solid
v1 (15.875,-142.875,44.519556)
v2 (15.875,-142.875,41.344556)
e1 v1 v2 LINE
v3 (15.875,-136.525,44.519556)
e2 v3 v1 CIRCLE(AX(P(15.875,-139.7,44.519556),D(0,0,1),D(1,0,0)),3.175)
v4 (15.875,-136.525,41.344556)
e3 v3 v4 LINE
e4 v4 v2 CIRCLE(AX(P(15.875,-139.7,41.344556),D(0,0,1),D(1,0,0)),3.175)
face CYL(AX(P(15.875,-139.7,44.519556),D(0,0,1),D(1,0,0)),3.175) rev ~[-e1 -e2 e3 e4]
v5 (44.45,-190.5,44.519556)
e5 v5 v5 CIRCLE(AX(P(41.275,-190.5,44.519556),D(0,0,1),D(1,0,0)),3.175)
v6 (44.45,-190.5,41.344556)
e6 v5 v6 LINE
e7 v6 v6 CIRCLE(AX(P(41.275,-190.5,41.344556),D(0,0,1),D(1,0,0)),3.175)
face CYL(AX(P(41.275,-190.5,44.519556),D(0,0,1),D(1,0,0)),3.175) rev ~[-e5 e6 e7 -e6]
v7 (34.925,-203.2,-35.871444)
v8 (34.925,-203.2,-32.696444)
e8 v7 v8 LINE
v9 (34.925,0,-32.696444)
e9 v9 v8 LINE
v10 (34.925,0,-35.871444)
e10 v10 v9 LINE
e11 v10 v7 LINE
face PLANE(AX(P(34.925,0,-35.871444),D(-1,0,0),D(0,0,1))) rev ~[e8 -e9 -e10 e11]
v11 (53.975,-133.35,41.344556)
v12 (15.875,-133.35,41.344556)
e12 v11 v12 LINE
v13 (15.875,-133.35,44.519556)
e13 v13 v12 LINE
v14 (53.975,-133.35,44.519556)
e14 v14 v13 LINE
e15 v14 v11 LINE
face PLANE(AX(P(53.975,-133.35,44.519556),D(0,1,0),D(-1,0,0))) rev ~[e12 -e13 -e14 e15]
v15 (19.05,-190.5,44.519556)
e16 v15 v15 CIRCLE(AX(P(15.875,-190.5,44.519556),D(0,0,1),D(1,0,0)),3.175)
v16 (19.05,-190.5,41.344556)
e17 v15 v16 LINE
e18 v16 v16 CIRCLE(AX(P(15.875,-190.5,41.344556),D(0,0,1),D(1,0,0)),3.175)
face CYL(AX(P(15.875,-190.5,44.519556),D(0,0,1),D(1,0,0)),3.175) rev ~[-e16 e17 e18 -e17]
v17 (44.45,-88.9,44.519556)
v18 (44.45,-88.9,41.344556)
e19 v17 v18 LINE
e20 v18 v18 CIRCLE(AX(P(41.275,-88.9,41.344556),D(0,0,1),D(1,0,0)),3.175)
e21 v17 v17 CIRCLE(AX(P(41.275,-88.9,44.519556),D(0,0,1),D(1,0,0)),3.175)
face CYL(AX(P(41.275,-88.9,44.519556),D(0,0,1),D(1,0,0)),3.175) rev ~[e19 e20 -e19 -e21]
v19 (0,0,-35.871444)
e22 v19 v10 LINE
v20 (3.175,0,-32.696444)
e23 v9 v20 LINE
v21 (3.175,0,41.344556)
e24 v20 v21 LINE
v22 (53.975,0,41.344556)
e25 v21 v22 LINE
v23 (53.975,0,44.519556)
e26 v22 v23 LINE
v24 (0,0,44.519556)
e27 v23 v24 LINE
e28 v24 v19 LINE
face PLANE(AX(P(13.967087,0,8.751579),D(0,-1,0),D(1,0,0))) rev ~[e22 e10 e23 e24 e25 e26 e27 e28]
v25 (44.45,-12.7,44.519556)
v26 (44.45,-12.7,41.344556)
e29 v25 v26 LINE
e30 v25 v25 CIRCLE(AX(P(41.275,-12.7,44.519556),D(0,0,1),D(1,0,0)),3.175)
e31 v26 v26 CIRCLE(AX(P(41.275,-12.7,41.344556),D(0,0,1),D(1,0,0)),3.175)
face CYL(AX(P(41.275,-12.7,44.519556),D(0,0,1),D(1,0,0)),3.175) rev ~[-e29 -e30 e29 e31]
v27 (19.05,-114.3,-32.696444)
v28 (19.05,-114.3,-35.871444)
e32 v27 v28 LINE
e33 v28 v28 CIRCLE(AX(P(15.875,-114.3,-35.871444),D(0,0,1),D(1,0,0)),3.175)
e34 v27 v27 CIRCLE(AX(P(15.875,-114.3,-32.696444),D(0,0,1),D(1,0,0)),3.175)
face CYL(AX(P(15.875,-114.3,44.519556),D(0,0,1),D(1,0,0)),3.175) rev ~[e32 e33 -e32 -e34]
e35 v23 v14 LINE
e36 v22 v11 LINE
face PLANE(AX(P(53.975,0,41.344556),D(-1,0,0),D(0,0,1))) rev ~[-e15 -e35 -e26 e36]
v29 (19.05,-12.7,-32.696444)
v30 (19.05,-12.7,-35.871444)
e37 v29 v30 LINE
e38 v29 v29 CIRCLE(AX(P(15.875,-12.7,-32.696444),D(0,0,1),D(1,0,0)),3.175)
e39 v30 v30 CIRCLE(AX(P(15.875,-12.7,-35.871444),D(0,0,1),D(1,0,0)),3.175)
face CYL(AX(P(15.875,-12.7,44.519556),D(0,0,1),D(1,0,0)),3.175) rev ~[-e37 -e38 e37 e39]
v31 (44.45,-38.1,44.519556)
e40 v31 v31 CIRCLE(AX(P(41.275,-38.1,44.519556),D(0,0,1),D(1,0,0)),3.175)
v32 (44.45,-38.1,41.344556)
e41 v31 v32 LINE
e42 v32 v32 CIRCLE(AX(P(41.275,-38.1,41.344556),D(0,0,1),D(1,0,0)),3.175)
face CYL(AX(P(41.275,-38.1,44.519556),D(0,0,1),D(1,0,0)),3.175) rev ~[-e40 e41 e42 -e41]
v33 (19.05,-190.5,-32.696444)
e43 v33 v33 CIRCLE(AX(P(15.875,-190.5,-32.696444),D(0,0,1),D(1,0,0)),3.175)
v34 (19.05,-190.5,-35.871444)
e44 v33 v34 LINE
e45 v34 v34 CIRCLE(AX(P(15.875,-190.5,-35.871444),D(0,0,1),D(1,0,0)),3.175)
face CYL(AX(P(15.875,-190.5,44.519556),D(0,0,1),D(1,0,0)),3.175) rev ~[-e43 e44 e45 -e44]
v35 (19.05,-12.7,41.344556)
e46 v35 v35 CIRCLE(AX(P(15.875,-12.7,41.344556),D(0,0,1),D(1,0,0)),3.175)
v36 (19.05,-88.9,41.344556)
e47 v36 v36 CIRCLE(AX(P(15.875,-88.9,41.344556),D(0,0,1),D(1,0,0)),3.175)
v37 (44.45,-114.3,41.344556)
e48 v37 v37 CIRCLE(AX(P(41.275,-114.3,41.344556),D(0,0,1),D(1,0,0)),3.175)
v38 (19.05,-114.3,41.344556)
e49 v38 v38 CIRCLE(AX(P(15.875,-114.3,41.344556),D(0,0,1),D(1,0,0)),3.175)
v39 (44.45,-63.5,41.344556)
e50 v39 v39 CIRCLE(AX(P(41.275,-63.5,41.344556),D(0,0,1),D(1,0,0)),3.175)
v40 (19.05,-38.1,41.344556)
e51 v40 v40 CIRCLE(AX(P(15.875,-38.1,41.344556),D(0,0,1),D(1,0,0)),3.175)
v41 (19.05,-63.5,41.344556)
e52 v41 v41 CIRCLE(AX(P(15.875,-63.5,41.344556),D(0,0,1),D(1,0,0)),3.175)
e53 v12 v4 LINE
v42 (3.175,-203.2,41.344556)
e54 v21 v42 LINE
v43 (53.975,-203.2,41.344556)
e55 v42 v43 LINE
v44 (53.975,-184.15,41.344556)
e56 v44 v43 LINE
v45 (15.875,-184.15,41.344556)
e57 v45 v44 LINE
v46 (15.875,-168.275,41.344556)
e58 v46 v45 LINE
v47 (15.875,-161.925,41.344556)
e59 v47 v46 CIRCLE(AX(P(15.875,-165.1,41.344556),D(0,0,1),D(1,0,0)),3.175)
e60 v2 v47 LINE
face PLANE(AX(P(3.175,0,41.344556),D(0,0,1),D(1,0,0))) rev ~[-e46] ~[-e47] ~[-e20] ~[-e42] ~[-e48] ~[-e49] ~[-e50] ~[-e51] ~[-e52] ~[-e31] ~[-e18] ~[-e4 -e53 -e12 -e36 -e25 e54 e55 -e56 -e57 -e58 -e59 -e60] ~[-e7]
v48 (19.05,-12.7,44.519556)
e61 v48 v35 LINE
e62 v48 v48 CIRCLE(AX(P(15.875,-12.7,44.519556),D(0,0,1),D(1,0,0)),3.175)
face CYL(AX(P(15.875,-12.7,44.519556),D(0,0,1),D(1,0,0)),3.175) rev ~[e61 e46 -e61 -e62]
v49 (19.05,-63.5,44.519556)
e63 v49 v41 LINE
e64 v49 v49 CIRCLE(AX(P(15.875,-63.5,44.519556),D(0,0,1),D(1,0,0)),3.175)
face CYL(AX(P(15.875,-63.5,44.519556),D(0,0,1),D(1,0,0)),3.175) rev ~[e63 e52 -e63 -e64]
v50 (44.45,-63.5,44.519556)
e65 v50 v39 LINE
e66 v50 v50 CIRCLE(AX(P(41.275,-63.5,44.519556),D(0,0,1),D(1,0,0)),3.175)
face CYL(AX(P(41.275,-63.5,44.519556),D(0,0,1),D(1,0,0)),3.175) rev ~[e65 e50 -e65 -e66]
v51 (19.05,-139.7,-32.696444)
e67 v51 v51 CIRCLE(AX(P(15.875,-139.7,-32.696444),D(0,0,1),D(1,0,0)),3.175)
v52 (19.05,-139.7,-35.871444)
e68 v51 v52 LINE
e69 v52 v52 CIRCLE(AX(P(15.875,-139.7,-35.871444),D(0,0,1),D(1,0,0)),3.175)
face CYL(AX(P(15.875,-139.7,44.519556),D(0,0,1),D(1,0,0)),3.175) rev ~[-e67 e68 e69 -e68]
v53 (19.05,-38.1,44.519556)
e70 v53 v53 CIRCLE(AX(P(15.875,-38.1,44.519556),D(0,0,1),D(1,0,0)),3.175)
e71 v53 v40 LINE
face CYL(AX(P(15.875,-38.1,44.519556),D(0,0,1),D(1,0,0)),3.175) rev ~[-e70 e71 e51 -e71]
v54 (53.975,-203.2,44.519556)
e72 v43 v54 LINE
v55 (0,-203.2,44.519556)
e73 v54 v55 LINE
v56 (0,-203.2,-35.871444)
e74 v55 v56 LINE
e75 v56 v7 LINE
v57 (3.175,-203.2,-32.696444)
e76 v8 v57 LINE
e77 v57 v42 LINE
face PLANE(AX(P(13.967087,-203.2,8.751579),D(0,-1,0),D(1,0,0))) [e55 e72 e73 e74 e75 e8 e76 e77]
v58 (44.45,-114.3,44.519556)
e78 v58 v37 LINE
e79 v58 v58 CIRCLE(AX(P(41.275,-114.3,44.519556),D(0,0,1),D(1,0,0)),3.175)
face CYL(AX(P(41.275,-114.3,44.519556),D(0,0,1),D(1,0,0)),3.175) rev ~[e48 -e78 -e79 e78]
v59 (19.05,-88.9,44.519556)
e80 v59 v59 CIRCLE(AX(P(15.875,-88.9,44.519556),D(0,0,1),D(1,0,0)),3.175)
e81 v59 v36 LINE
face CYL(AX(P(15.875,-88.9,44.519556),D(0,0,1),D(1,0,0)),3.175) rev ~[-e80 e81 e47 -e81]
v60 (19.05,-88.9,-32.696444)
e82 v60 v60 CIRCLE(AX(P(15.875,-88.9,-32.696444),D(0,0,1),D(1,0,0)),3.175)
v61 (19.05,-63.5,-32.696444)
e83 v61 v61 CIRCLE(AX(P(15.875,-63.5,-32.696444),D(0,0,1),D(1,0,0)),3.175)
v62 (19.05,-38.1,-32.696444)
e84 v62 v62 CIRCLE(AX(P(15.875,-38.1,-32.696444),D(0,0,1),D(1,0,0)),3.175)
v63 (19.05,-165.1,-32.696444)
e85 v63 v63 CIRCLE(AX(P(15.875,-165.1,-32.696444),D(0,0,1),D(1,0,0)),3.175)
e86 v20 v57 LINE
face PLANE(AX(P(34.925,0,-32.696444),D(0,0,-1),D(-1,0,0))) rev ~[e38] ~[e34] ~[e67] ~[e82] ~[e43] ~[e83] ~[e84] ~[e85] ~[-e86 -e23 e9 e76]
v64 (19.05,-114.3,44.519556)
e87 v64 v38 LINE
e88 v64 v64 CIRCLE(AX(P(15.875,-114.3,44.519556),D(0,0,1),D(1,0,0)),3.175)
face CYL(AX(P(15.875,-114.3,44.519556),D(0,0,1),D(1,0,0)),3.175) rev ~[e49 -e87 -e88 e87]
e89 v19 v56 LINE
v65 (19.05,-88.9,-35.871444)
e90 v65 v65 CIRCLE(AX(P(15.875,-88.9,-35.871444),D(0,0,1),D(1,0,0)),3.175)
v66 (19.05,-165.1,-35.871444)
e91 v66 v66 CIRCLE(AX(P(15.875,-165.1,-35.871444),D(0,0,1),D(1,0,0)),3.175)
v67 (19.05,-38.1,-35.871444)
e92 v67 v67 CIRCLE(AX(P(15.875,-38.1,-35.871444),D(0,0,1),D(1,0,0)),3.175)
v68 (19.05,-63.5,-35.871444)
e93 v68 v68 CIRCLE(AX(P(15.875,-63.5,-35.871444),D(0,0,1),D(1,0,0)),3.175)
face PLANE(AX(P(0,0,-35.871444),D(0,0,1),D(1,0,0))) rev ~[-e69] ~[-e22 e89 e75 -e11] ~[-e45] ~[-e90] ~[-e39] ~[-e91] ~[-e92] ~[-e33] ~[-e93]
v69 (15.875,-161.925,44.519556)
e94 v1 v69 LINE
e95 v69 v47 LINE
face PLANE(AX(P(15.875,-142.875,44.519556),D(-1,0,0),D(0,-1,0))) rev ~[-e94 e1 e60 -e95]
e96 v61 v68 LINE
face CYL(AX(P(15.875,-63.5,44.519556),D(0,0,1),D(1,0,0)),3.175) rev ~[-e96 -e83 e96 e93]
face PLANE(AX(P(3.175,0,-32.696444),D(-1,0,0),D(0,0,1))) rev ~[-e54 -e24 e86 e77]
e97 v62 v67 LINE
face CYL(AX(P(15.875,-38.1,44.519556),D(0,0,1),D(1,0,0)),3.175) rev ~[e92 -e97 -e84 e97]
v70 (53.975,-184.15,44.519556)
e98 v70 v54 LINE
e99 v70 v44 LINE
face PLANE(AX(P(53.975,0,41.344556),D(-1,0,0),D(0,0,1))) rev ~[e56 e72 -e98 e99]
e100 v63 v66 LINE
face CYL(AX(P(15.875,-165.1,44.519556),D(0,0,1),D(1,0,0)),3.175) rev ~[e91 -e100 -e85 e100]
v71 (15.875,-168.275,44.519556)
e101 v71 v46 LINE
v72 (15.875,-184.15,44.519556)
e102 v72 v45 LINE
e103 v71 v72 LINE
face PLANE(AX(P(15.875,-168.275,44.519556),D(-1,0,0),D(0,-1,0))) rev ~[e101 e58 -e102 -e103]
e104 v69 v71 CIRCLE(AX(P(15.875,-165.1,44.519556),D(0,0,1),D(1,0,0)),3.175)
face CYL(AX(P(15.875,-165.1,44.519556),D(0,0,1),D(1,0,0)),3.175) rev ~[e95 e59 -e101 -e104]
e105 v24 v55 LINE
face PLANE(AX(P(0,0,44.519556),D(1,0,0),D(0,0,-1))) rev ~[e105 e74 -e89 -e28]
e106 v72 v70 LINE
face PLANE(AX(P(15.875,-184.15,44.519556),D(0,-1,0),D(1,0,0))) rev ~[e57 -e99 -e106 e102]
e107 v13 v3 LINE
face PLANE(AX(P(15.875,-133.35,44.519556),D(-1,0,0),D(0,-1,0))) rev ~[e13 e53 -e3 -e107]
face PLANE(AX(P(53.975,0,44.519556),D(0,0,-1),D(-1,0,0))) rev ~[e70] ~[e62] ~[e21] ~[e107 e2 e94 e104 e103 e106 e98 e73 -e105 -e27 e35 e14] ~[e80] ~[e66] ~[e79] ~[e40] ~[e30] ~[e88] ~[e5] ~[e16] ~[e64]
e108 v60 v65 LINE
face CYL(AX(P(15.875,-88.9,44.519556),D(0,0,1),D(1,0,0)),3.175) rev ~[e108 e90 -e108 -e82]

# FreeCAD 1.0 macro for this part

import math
import FreeCAD as App
import Part
import Sketcher
Q = App.Units.Quantity

doc = App.newDocument("Part")
body = doc.addObject("PartDesign::Body", "Body")

# Sketch on XZ plane
sketch1 = body.newObject("Sketcher::SketchObject", "Sketch")
sketch1.AttachmentSupport = (doc.getObject("XZ_Plane"), [""])
sketch1.MapMode = "FlatFace"
sketch1.addGeometry([
    Part.LineSegment(App.Vector(54, 44.5, 0), App.Vector(0, 44.5, 0)),  # 0
    Part.LineSegment(App.Vector(0, 44.5, 0), App.Vector(0, -35.9, 0)),  # 1
    Part.LineSegment(App.Vector(0, -35.9, 0), App.Vector(34.9, -35.9, 0)),  # 2
    Part.LineSegment(App.Vector(34.9, -35.9, 0), App.Vector(34.9, -32.7, 0)),  # 3
    Part.LineSegment(App.Vector(34.9, -32.7, 0), App.Vector(3.2, -32.7, 0)),  # 4
    Part.LineSegment(App.Vector(3.2, -32.7, 0), App.Vector(3.2, 41.3, 0)),  # 5
    Part.LineSegment(App.Vector(3.2, 41.3, 0), App.Vector(54, 41.3, 0)),  # 6
    Part.LineSegment(App.Vector(54, 41.3, 0), App.Vector(54, 44.5, 0)),  # 7
], False)
sketch1.addConstraint([
    Sketcher.Constraint("Coincident", 0, 2, 1, 1),
    Sketcher.Constraint("Coincident", 1, 2, 2, 1),
    Sketcher.Constraint("Coincident", 2, 2, 3, 1),
    Sketcher.Constraint("Coincident", 3, 2, 4, 1),
    Sketcher.Constraint("Coincident", 4, 2, 5, 1),
    Sketcher.Constraint("Coincident", 5, 2, 6, 1),
    Sketcher.Constraint("Coincident", 6, 2, 7, 1),
    Sketcher.Constraint("Coincident", 7, 2, 0, 1),
    Sketcher.Constraint("Horizontal", 0),
    Sketcher.Constraint("Vertical", 1),
    Sketcher.Constraint("Horizontal", 2),
    Sketcher.Constraint("Vertical", 3),
    Sketcher.Constraint("Horizontal", 4),
    Sketcher.Constraint("Vertical", 5),
    Sketcher.Constraint("Horizontal", 6),
    Sketcher.Constraint("Vertical", 7),
    Sketcher.Constraint("PointOnObject", 0, 2, -2),
    Sketcher.Constraint("Equal", 3, 7),
    Sketcher.Constraint("DistanceX", 6, 1, 6, 2, Q("2 in")),
    Sketcher.Constraint("DistanceX", 4, 2, 4, 1, Q("1.25 in")),
    Sketcher.Constraint("DistanceX", 0, 2, 0, 1, Q("2.125 in")),
    Sketcher.Constraint("DistanceY", 1, 2, 1, 1, Q("3.165 in")),
    Sketcher.Constraint("DistanceY", 3, 1, 3, 2, Q("0.125 in")),
    Sketcher.Constraint("DistanceY", -1, 1, 0, 2, 44.519556),
])
pad1 = body.newObject("PartDesign::Pad", "Pad")
pad1.Profile = sketch1
pad1.Length = Q("8 in")

# Sketch on XY plane
sketch2 = body.newObject("Sketcher::SketchObject", "Sketch001")
sketch2.AttachmentSupport = (doc.getObject("XY_Plane"), [""])
sketch2.MapMode = "FlatFace"
sketch2.AttachmentOffset = App.Placement(App.Vector(0, 0, 44.519556), App.Rotation())
sketch2.addGeometry([
    Part.Circle(App.Vector(41.3, -190.5, 0), App.Vector(0, 0, 1), 3.2),  # 0
    Part.Circle(App.Vector(41.3, -165.1, 0), App.Vector(0, 0, 1), 3.2),  # 1
    Part.Circle(App.Vector(41.3, -139.7, 0), App.Vector(0, 0, 1), 3.2),  # 2
    Part.Circle(App.Vector(41.3, -114.3, 0), App.Vector(0, 0, 1), 3.2),  # 3
    Part.Circle(App.Vector(41.3, -88.9, 0), App.Vector(0, 0, 1), 3.2),  # 4
    Part.Circle(App.Vector(41.3, -63.5, 0), App.Vector(0, 0, 1), 3.2),  # 5
    Part.Circle(App.Vector(41.3, -38.1, 0), App.Vector(0, 0, 1), 3.2),  # 6
    Part.Circle(App.Vector(41.3, -12.7, 0), App.Vector(0, 0, 1), 3.2),  # 7
    Part.Circle(App.Vector(15.9, -190.5, 0), App.Vector(0, 0, 1), 3.2),  # 8
    Part.Circle(App.Vector(15.9, -165.1, 0), App.Vector(0, 0, 1), 3.2),  # 9
    Part.Circle(App.Vector(15.9, -139.7, 0), App.Vector(0, 0, 1), 3.2),  # 10
    Part.Circle(App.Vector(15.9, -114.3, 0), App.Vector(0, 0, 1), 3.2),  # 11
    Part.Circle(App.Vector(15.9, -88.9, 0), App.Vector(0, 0, 1), 3.2),  # 12
    Part.Circle(App.Vector(15.9, -63.5, 0), App.Vector(0, 0, 1), 3.2),  # 13
    Part.Circle(App.Vector(15.9, -38.1, 0), App.Vector(0, 0, 1), 3.2),  # 14
    Part.Circle(App.Vector(15.9, -12.7, 0), App.Vector(0, 0, 1), 3.2),  # 15
], False)
sketch2.addConstraint([
    Sketcher.Constraint("Equal", 0, 1),
    Sketcher.Constraint("Equal", 1, 2),
    Sketcher.Constraint("Equal", 2, 3),
    Sketcher.Constraint("Equal", 3, 4),
    Sketcher.Constraint("Equal", 4, 5),
    Sketcher.Constraint("Equal", 5, 6),
    Sketcher.Constraint("Equal", 6, 7),
    Sketcher.Constraint("Equal", 7, 8),
    Sketcher.Constraint("Equal", 8, 9),
    Sketcher.Constraint("Equal", 9, 10),
    Sketcher.Constraint("Equal", 10, 11),
    Sketcher.Constraint("Equal", 11, 12),
    Sketcher.Constraint("Equal", 12, 13),
    Sketcher.Constraint("Equal", 13, 14),
    Sketcher.Constraint("Equal", 14, 15),
    Sketcher.Constraint("Horizontal", 0, 3, 8, 3),
    Sketcher.Constraint("Horizontal", 1, 3, 9, 3),
    Sketcher.Constraint("Horizontal", 2, 3, 10, 3),
    Sketcher.Constraint("Horizontal", 3, 3, 11, 3),
    Sketcher.Constraint("Horizontal", 4, 3, 12, 3),
    Sketcher.Constraint("Horizontal", 5, 3, 13, 3),
    Sketcher.Constraint("Horizontal", 6, 3, 14, 3),
    Sketcher.Constraint("Horizontal", 7, 3, 15, 3),
    Sketcher.Constraint("Vertical", 0, 3, 1, 3),
    Sketcher.Constraint("Vertical", 1, 3, 2, 3),
    Sketcher.Constraint("Vertical", 2, 3, 3, 3),
    Sketcher.Constraint("Vertical", 3, 3, 4, 3),
    Sketcher.Constraint("Vertical", 4, 3, 5, 3),
    Sketcher.Constraint("Vertical", 5, 3, 6, 3),
    Sketcher.Constraint("Vertical", 6, 3, 7, 3),
    Sketcher.Constraint("Vertical", 8, 3, 9, 3),
    Sketcher.Constraint("Vertical", 9, 3, 10, 3),
    Sketcher.Constraint("Vertical", 10, 3, 11, 3),
    Sketcher.Constraint("Vertical", 11, 3, 12, 3),
    Sketcher.Constraint("Vertical", 12, 3, 13, 3),
    Sketcher.Constraint("Vertical", 13, 3, 14, 3),
    Sketcher.Constraint("Vertical", 14, 3, 15, 3),
    Sketcher.Constraint("Diameter", 0, Q("0.25 in")),
    Sketcher.Constraint("DistanceY", 0, 3, 1, 3, Q("1 in")),
    Sketcher.Constraint("DistanceY", 1, 3, 2, 3, Q("1 in")),
    Sketcher.Constraint("DistanceY", 2, 3, 3, 3, Q("1 in")),
    Sketcher.Constraint("DistanceY", 3, 3, 4, 3, Q("1 in")),
    Sketcher.Constraint("DistanceY", 4, 3, 5, 3, Q("1 in")),
    Sketcher.Constraint("DistanceY", 5, 3, 6, 3, Q("1 in")),
    Sketcher.Constraint("DistanceY", 6, 3, 7, 3, Q("1 in")),
    Sketcher.Constraint("DistanceX", 8, 3, 0, 3, Q("1 in")),
    Sketcher.Constraint("DistanceY", 0, 3, -1, 1, Q("7.5 in")),
    Sketcher.Constraint("DistanceX", -1, 1, 0, 3, Q("1.625 in")),
])
pocket1 = body.newObject("PartDesign::Pocket", "Pocket")
pocket1.Profile = sketch2
pocket1.Length = Q("4 in")

# Sketch on XY plane
sketch3 = body.newObject("Sketcher::SketchObject", "Sketch002")
sketch3.AttachmentSupport = (doc.getObject("XY_Plane"), [""])
sketch3.MapMode = "FlatFace"
sketch3.AttachmentOffset = App.Placement(App.Vector(0, 0, 44.519556), App.Rotation())
sketch3.addGeometry([
    Part.LineSegment(App.Vector(15.9, -184.2, 0), App.Vector(54, -184.2, 0)),  # 0
    Part.LineSegment(App.Vector(54, -184.2, 0), App.Vector(54, -133.3, 0)),  # 1
    Part.LineSegment(App.Vector(54, -133.3, 0), App.Vector(15.9, -133.3, 0)),  # 2
    Part.LineSegment(App.Vector(15.9, -133.3, 0), App.Vector(15.9, -136.5, 0)),  # 3
    Part.ArcOfCircle(Part.Circle(App.Vector(15.9, -139.7, 0), App.Vector(0, 0, 1), 3.2), math.radians(0), math.radians(90)),  # 4
    Part.ArcOfCircle(Part.Circle(App.Vector(15.9, -139.7, 0), App.Vector(0, 0, 1), 3.2), math.radians(-90), math.radians(0)),  # 5
    Part.LineSegment(App.Vector(15.9, -142.9, 0), App.Vector(15.9, -161.9, 0)),  # 6
    Part.ArcOfCircle(Part.Circle(App.Vector(15.9, -165.1, 0), App.Vector(0, 0, 1), 3.2), math.radians(0), math.radians(90)),  # 7
    Part.ArcOfCircle(Part.Circle(App.Vector(15.9, -165.1, 0), App.Vector(0, 0, 1), 3.2), math.radians(-90), math.radians(0)),  # 8
    Part.LineSegment(App.Vector(15.9, -168.3, 0), App.Vector(15.9, -184.2, 0)),  # 9
    Part.Circle(App.Vector(41.3, -165.1, 0), App.Vector(0, 0, 1), 3.2),  # 10
    Part.Circle(App.Vector(41.3, -139.7, 0), App.Vector(0, 0, 1), 3.2),  # 11
], False)
sketch3.addConstraint([
    Sketcher.Constraint("Coincident", 0, 2, 1, 1),
    Sketcher.Constraint("Coincident", 1, 2, 2, 1),
    Sketcher.Constraint("Coincident", 2, 2, 3, 1),
    Sketcher.Constraint("Coincident", 3, 2, 4, 2),
    Sketcher.Constraint("Tangent", 4, 1, 5, 2),
    Sketcher.Constraint("Coincident", 5, 1, 6, 1),
    Sketcher.Constraint("Coincident", 6, 2, 7, 2),
    Sketcher.Constraint("Tangent", 7, 1, 8, 2),
    Sketcher.Constraint("Coincident", 8, 1, 9, 1),
    Sketcher.Constraint("Coincident", 9, 2, 0, 1),
    Sketcher.Constraint("Horizontal", 0),
    Sketcher.Constraint("Vertical", 1),
    Sketcher.Constraint("Horizontal", 2),
    Sketcher.Constraint("Vertical", 3),
    Sketcher.Constraint("Vertical", 6),
    Sketcher.Constraint("Vertical", 9),
    Sketcher.Constraint("Equal", 4, 5),
    Sketcher.Constraint("Equal", 5, 7),
    Sketcher.Constraint("Equal", 7, 8),
    Sketcher.Constraint("Equal", 8, 10),
    Sketcher.Constraint("Equal", 10, 11),
    Sketcher.Constraint("Horizontal", 8, 3, 10, 3),
    Sketcher.Constraint("Horizontal", 5, 3, 11, 3),
    Sketcher.Constraint("Horizontal", 11, 3, 4, 1),
    Sketcher.Constraint("Horizontal", 10, 3, 7, 1),
    Sketcher.Constraint("Vertical", 5, 3, 7, 3),
    Sketcher.Constraint("Vertical", 10, 3, 11, 3),
    Sketcher.Constraint("Vertical", 8, 3, 2, 2),
    Sketcher.Constraint("Vertical", 3, 2, 5, 1),
    Sketcher.Constraint("Vertical", 6, 2, 8, 1),
    Sketcher.Constraint("Diameter", 10, Q("0.25 in")),
    Sketcher.Constraint("DistanceY", 1, 1, 1, 2, Q("2 in")),
    Sketcher.Constraint("DistanceX", 0, 1, 0, 2, Q("1.5 in")),
    Sketcher.Constraint("DistanceY", 7, 3, 4, 3, Q("1 in")),
    Sketcher.Constraint("DistanceX", 7, 3, 10, 3, Q("1 in")),
    Sketcher.Constraint("DistanceY", 4, 3, -1, 1, Q("5.5 in")),
    Sketcher.Constraint("DistanceY", 3, 2, 3, 1, Q("0.125 in")),
    Sketcher.Constraint("DistanceX", -1, 1, 4, 1, Q("0.75 in")),
])
pocket2 = body.newObject("PartDesign::Pocket", "Pocket001")
pocket2.Profile = sketch3
pocket2.Length = Q("1 in")

doc.recompute()
